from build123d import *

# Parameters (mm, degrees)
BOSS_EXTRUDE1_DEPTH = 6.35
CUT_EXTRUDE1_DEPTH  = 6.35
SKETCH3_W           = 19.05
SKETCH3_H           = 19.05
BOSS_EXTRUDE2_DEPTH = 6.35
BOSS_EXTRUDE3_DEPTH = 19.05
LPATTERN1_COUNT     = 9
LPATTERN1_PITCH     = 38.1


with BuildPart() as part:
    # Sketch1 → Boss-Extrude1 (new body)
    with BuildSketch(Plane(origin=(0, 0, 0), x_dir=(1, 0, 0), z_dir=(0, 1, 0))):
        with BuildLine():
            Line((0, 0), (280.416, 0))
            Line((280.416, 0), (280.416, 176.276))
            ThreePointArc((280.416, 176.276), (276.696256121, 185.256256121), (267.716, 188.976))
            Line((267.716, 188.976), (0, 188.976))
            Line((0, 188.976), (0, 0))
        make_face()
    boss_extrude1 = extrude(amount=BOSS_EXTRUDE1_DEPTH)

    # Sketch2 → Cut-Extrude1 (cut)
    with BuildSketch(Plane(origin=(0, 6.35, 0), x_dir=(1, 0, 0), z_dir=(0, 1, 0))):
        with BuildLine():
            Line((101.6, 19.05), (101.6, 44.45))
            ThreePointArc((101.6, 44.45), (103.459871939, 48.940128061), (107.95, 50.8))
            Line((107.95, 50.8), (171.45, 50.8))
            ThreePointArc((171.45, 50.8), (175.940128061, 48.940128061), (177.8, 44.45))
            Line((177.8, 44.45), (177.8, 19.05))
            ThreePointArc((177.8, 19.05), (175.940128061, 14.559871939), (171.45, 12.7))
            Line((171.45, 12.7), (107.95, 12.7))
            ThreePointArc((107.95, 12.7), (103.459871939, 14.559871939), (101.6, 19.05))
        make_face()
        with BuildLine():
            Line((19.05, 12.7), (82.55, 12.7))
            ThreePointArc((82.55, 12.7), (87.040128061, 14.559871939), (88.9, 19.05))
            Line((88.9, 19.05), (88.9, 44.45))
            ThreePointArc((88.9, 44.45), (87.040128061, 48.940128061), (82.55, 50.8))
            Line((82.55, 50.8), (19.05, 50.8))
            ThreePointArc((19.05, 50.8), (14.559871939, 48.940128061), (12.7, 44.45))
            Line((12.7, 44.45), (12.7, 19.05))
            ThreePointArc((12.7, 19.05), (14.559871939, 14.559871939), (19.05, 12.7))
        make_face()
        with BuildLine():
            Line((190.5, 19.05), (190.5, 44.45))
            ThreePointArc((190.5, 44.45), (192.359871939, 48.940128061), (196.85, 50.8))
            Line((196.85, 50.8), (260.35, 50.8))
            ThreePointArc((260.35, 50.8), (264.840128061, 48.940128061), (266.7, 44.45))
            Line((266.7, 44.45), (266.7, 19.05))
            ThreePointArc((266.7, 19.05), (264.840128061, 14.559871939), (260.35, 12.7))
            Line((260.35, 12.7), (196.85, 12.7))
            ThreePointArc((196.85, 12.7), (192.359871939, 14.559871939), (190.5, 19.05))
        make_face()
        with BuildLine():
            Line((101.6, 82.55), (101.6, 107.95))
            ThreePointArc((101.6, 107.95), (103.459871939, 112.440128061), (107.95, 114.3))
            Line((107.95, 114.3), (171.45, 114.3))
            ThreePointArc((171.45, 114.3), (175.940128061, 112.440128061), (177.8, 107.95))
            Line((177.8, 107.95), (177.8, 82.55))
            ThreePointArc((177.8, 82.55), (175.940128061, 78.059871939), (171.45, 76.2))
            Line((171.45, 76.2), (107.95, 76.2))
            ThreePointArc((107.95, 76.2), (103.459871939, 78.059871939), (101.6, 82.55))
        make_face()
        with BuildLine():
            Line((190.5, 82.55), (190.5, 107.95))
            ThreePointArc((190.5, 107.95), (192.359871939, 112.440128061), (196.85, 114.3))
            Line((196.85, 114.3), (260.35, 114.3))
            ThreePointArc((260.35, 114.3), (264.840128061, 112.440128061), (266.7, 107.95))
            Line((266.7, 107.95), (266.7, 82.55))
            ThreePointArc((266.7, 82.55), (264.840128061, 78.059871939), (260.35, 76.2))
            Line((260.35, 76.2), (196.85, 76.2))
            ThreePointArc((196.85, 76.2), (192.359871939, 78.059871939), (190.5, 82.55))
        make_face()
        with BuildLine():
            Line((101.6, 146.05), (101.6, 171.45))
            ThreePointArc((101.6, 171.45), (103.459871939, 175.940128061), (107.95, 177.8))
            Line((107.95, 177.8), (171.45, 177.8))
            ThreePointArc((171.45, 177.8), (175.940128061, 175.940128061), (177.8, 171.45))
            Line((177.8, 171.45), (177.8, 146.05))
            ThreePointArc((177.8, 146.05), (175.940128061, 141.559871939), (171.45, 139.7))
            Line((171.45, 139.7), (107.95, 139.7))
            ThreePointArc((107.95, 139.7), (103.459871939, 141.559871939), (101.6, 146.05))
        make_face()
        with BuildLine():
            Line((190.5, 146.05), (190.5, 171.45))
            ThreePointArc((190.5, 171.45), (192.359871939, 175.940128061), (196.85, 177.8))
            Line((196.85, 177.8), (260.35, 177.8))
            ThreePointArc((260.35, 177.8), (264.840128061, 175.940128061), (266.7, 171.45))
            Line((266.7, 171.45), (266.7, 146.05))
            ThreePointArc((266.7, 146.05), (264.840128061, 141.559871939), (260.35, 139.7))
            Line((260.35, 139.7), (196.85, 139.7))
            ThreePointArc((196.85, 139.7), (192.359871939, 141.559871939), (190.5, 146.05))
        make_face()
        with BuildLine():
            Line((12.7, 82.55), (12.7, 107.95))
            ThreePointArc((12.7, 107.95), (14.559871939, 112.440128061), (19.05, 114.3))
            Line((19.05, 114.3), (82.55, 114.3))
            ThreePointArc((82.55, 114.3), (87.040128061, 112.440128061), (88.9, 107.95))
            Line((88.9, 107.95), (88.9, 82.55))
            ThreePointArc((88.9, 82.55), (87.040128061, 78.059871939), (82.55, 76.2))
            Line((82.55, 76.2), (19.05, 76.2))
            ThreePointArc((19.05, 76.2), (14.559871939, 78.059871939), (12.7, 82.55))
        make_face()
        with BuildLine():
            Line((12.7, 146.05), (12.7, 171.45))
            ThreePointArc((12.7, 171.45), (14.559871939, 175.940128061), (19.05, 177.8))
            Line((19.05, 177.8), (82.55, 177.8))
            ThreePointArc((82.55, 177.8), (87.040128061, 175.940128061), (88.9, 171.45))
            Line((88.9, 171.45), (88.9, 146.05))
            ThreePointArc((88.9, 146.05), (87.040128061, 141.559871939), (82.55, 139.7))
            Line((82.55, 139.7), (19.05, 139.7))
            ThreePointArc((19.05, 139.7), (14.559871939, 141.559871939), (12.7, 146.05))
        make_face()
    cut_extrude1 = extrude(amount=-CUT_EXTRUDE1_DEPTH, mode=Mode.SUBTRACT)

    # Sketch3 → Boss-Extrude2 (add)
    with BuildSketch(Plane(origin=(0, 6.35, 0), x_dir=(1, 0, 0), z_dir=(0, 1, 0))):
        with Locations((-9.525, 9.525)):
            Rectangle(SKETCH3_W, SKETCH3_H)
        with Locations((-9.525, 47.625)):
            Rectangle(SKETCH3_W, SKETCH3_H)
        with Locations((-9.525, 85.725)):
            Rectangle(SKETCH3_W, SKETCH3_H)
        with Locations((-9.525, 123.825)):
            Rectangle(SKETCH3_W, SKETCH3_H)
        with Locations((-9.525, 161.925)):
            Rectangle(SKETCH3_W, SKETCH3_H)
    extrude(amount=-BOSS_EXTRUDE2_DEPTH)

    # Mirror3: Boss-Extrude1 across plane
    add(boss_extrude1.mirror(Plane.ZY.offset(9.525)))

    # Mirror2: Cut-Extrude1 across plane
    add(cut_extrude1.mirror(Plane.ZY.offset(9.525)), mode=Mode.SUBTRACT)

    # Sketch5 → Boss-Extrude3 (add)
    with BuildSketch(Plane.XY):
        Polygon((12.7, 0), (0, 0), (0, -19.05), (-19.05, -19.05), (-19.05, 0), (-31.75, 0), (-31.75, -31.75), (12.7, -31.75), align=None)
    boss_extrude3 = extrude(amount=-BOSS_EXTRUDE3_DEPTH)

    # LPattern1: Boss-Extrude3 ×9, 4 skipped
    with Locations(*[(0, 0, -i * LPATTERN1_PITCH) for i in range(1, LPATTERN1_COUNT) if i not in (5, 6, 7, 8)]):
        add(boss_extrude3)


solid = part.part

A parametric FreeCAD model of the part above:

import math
import FreeCAD as App
import Part
import Sketcher

V = App.Vector
Q = App.Units.Quantity

doc = App.newDocument("Part")
params = doc.addObject("Spreadsheet::Sheet", "Params")
for row, (alias, value) in enumerate([
    ("sketch1_radius", "0.5 in"),
    ("sketch1_width", "11.04 in"),
    ("sketch1_height", "6.94 in"),
    ("pad1_length", "0.25 in"),
    ("sketch2_height", "1 in"),
    ("sketch2_radius", "0.25 in"),
    ("sketch2_width", "2.5 in"),
    ("pocket1_length", "0.25 in"),
    ("sketch3_width", "0.75 in"),
    ("pad2_length", "0.25 in"),
    ("sketch4_width", "0.5 in"),
    ("sketch4_width2", "0.75 in"),
    ("sketch4_height", "1.25 in"),
    ("pad3_length", "0.75 in"),
    ("linearpattern_pitch", "1.5 in"),
], start=1):
    params.set(f"A{row}", alias)
    params.set(f"B{row}", "=" + value)
    params.setAlias(f"B{row}", alias)

body = doc.addObject("PartDesign::Body", "Body")

sketch1 = body.newObject("Sketcher::SketchObject", "Sketch")
sketch1.AttachmentSupport = (doc.getObject("XZ_Plane"), [""])
sketch1.MapMode = "FlatFace"
sketch1.addGeometry(Part.LineSegment(V(0, 0, 0), V(280, 0, 0)), False)
sketch1.addGeometry(Part.LineSegment(V(280, 0, 0), V(280, -176, 0)), False)
sketch1.addGeometry(Part.ArcOfCircle(Part.Circle(V(268, -176, 0), V(0, 0, 1), 13), math.radians(-90), math.radians(0)), False)
sketch1.addGeometry(Part.LineSegment(V(268, -189, 0), V(0, -189, 0)), False)
sketch1.addGeometry(Part.LineSegment(V(0, -189, 0), V(0, 0, 0)), False)
sketch1.addConstraint(Sketcher.Constraint("Coincident", 0, 2, 1, 1))
sketch1.addConstraint(Sketcher.Constraint("Tangent", 1, 2, 2, 2))
sketch1.addConstraint(Sketcher.Constraint("Tangent", 2, 1, 3, 1))
sketch1.addConstraint(Sketcher.Constraint("Coincident", 3, 2, 4, 1))
sketch1.addConstraint(Sketcher.Constraint("Coincident", 4, 2, 0, 1))
sketch1.addConstraint(Sketcher.Constraint("Horizontal", 0))
sketch1.addConstraint(Sketcher.Constraint("Vertical", 1))
sketch1.addConstraint(Sketcher.Constraint("Horizontal", 3))
sketch1.addConstraint(Sketcher.Constraint("Vertical", 4))
sketch1.addConstraint(Sketcher.Constraint("Coincident", 4, 2, -1, 1))
sketch1.addConstraint(Sketcher.Constraint("Radius", 2, Q("0.5 in")))
sketch1.addConstraint(Sketcher.Constraint("DistanceX", 0, 1, 0, 2, Q("11.04 in")))
sketch1.addConstraint(Sketcher.Constraint("DistanceY", 1, 2, 1, 1, Q("6.94 in")))
sketch1.setExpression("Constraints[10]", "Params.sketch1_radius")
sketch1.setExpression("Constraints[11]", "Params.sketch1_width")
sketch1.setExpression("Constraints[12]", "Params.sketch1_height")
pad1 = body.newObject("PartDesign::Pad", "Pad")
pad1.Profile = sketch1
pad1.setExpression("Length", "Params.pad1_length")
pad1.Reversed = True

sketch2 = body.newObject("Sketcher::SketchObject", "Sketch001")
sketch2.AttachmentSupport = (doc.getObject("XZ_Plane"), [""])
sketch2.MapMode = "FlatFace"
sketch2.AttachmentOffset = App.Placement(V(0, 0, -0.25 * 25.4), App.Rotation())
sketch2.addGeometry(Part.LineSegment(V(102, -44, 0), V(102, -19, 0)), False)
sketch2.addGeometry(Part.ArcOfCircle(Part.Circle(V(108, -19, 0), V(0, 0, 1), 6), math.radians(90), math.radians(180)), False)
sketch2.addGeometry(Part.LineSegment(V(108, -13, 0), V(171, -13, 0)), False)
sketch2.addGeometry(Part.ArcOfCircle(Part.Circle(V(171, -19, 0), V(0, 0, 1), 6), math.radians(0), math.radians(90)), False)
sketch2.addGeometry(Part.LineSegment(V(178, -19, 0), V(178, -44, 0)), False)
sketch2.addGeometry(Part.ArcOfCircle(Part.Circle(V(171, -44, 0), V(0, 0, 1), 6), math.radians(-90), math.radians(0)), False)
sketch2.addGeometry(Part.LineSegment(V(171, -51, 0), V(108, -51, 0)), False)
sketch2.addGeometry(Part.ArcOfCircle(Part.Circle(V(108, -44, 0), V(0, 0, 1), 6), math.radians(180), math.radians(270)), False)
sketch2.addGeometry(Part.LineSegment(V(19, -13, 0), V(83, -13, 0)), False)
sketch2.addGeometry(Part.ArcOfCircle(Part.Circle(V(83, -19, 0), V(0, 0, 1), 6), math.radians(0), math.radians(90)), False)
sketch2.addGeometry(Part.LineSegment(V(89, -19, 0), V(89, -44, 0)), False)
sketch2.addGeometry(Part.ArcOfCircle(Part.Circle(V(83, -44, 0), V(0, 0, 1), 6), math.radians(-90), math.radians(0)), False)
sketch2.addGeometry(Part.LineSegment(V(83, -51, 0), V(19, -51, 0)), False)
sketch2.addGeometry(Part.ArcOfCircle(Part.Circle(V(19, -44, 0), V(0, 0, 1), 6), math.radians(180), math.radians(270)), False)
sketch2.addGeometry(Part.LineSegment(V(13, -44, 0), V(13, -19, 0)), False)
sketch2.addGeometry(Part.ArcOfCircle(Part.Circle(V(19, -19, 0), V(0, 0, 1), 6), math.radians(90), math.radians(180)), False)
sketch2.addGeometry(Part.LineSegment(V(190, -44, 0), V(190, -19, 0)), False)
sketch2.addGeometry(Part.ArcOfCircle(Part.Circle(V(197, -19, 0), V(0, 0, 1), 6), math.radians(90), math.radians(180)), False)
sketch2.addGeometry(Part.LineSegment(V(197, -13, 0), V(260, -13, 0)), False)
sketch2.addGeometry(Part.ArcOfCircle(Part.Circle(V(260, -19, 0), V(0, 0, 1), 6), math.radians(0), math.radians(90)), False)
sketch2.addGeometry(Part.LineSegment(V(267, -19, 0), V(267, -44, 0)), False)
sketch2.addGeometry(Part.ArcOfCircle(Part.Circle(V(260, -44, 0), V(0, 0, 1), 6), math.radians(-90), math.radians(0)), False)
sketch2.addGeometry(Part.LineSegment(V(260, -51, 0), V(197, -51, 0)), False)
sketch2.addGeometry(Part.ArcOfCircle(Part.Circle(V(197, -44, 0), V(0, 0, 1), 6), math.radians(180), math.radians(270)), False)
sketch2.addGeometry(Part.LineSegment(V(102, -108, 0), V(102, -83, 0)), False)
sketch2.addGeometry(Part.ArcOfCircle(Part.Circle(V(108, -83, 0), V(0, 0, 1), 6), math.radians(90), math.radians(180)), False)
sketch2.addGeometry(Part.LineSegment(V(108, -76, 0), V(171, -76, 0)), False)
sketch2.addGeometry(Part.ArcOfCircle(Part.Circle(V(171, -83, 0), V(0, 0, 1), 6), math.radians(0), math.radians(90)), False)
sketch2.addGeometry(Part.LineSegment(V(178, -83, 0), V(178, -108, 0)), False)
sketch2.addGeometry(Part.ArcOfCircle(Part.Circle(V(171, -108, 0), V(0, 0, 1), 6), math.radians(-90), math.radians(0)), False)
sketch2.addGeometry(Part.LineSegment(V(171, -114, 0), V(108, -114, 0)), False)
sketch2.addGeometry(Part.ArcOfCircle(Part.Circle(V(108, -108, 0), V(0, 0, 1), 6), math.radians(180), math.radians(270)), False)
sketch2.addGeometry(Part.LineSegment(V(190, -108, 0), V(190, -83, 0)), False)
sketch2.addGeometry(Part.ArcOfCircle(Part.Circle(V(197, -83, 0), V(0, 0, 1), 6), math.radians(90), math.radians(180)), False)
sketch2.addGeometry(Part.LineSegment(V(197, -76, 0), V(260, -76, 0)), False)
sketch2.addGeometry(Part.ArcOfCircle(Part.Circle(V(260, -83, 0), V(0, 0, 1), 6), math.radians(0), math.radians(90)), False)
sketch2.addGeometry(Part.LineSegment(V(267, -83, 0), V(267, -108, 0)), False)
sketch2.addGeometry(Part.ArcOfCircle(Part.Circle(V(260, -108, 0), V(0, 0, 1), 6), math.radians(-90), math.radians(0)), False)
sketch2.addGeometry(Part.LineSegment(V(260, -114, 0), V(197, -114, 0)), False)
sketch2.addGeometry(Part.ArcOfCircle(Part.Circle(V(197, -108, 0), V(0, 0, 1), 6), math.radians(180), math.radians(270)), False)
sketch2.addGeometry(Part.LineSegment(V(102, -171, 0), V(102, -146, 0)), False)
sketch2.addGeometry(Part.ArcOfCircle(Part.Circle(V(108, -146, 0), V(0, 0, 1), 6), math.radians(90), math.radians(180)), False)
sketch2.addGeometry(Part.LineSegment(V(108, -140, 0), V(171, -140, 0)), False)
sketch2.addGeometry(Part.ArcOfCircle(Part.Circle(V(171, -146, 0), V(0, 0, 1), 6), math.radians(0), math.radians(90)), False)
sketch2.addGeometry(Part.LineSegment(V(178, -146, 0), V(178, -171, 0)), False)
sketch2.addGeometry(Part.ArcOfCircle(Part.Circle(V(171, -171, 0), V(0, 0, 1), 6), math.radians(-90), math.radians(0)), False)
sketch2.addGeometry(Part.LineSegment(V(171, -178, 0), V(108, -178, 0)), False)
sketch2.addGeometry(Part.ArcOfCircle(Part.Circle(V(108, -171, 0), V(0, 0, 1), 6), math.radians(180), math.radians(270)), False)
sketch2.addGeometry(Part.LineSegment(V(190, -171, 0), V(190, -146, 0)), False)
sketch2.addGeometry(Part.ArcOfCircle(Part.Circle(V(197, -146, 0), V(0, 0, 1), 6), math.radians(90), math.radians(180)), False)
sketch2.addGeometry(Part.LineSegment(V(197, -140, 0), V(260, -140, 0)), False)
sketch2.addGeometry(Part.ArcOfCircle(Part.Circle(V(260, -146, 0), V(0, 0, 1), 6), math.radians(0), math.radians(90)), False)
sketch2.addGeometry(Part.LineSegment(V(267, -146, 0), V(267, -171, 0)), False)
sketch2.addGeometry(Part.ArcOfCircle(Part.Circle(V(260, -171, 0), V(0, 0, 1), 6), math.radians(-90), math.radians(0)), False)
sketch2.addGeometry(Part.LineSegment(V(260, -178, 0), V(197, -178, 0)), False)
sketch2.addGeometry(Part.ArcOfCircle(Part.Circle(V(197, -171, 0), V(0, 0, 1), 6), math.radians(180), math.radians(270)), False)
sketch2.addGeometry(Part.LineSegment(V(13, -108, 0), V(13, -83, 0)), False)
sketch2.addGeometry(Part.ArcOfCircle(Part.Circle(V(19, -83, 0), V(0, 0, 1), 6), math.radians(90), math.radians(180)), False)
sketch2.addGeometry(Part.LineSegment(V(19, -76, 0), V(83, -76, 0)), False)
sketch2.addGeometry(Part.ArcOfCircle(Part.Circle(V(83, -83, 0), V(0, 0, 1), 6), math.radians(0), math.radians(90)), False)
sketch2.addGeometry(Part.LineSegment(V(89, -83, 0), V(89, -108, 0)), False)
sketch2.addGeometry(Part.ArcOfCircle(Part.Circle(V(83, -108, 0), V(0, 0, 1), 6), math.radians(-90), math.radians(0)), False)
sketch2.addGeometry(Part.LineSegment(V(83, -114, 0), V(19, -114, 0)), False)
sketch2.addGeometry(Part.ArcOfCircle(Part.Circle(V(19, -108, 0), V(0, 0, 1), 6), math.radians(180), math.radians(270)), False)
sketch2.addGeometry(Part.LineSegment(V(13, -171, 0), V(13, -146, 0)), False)
sketch2.addGeometry(Part.ArcOfCircle(Part.Circle(V(19, -146, 0), V(0, 0, 1), 6), math.radians(90), math.radians(180)), False)
sketch2.addGeometry(Part.LineSegment(V(19, -140, 0), V(83, -140, 0)), False)
sketch2.addGeometry(Part.ArcOfCircle(Part.Circle(V(83, -146, 0), V(0, 0, 1), 6), math.radians(0), math.radians(90)), False)
sketch2.addGeometry(Part.LineSegment(V(89, -146, 0), V(89, -171, 0)), False)
sketch2.addGeometry(Part.ArcOfCircle(Part.Circle(V(83, -171, 0), V(0, 0, 1), 6), math.radians(-90), math.radians(0)), False)
sketch2.addGeometry(Part.LineSegment(V(83, -178, 0), V(19, -178, 0)), False)
sketch2.addGeometry(Part.ArcOfCircle(Part.Circle(V(19, -171, 0), V(0, 0, 1), 6), math.radians(180), math.radians(270)), False)
sketch2.addConstraint(Sketcher.Constraint("Tangent", 0, 2, 1, 2))
sketch2.addConstraint(Sketcher.Constraint("Tangent", 1, 1, 2, 1))
sketch2.addConstraint(Sketcher.Constraint("Tangent", 2, 2, 3, 2))
sketch2.addConstraint(Sketcher.Constraint("Tangent", 3, 1, 4, 1))
sketch2.addConstraint(Sketcher.Constraint("Tangent", 4, 2, 5, 2))
sketch2.addConstraint(Sketcher.Constraint("Tangent", 5, 1, 6, 1))
sketch2.addConstraint(Sketcher.Constraint("Tangent", 6, 2, 7, 2))
sketch2.addConstraint(Sketcher.Constraint("Tangent", 7, 1, 0, 1))
sketch2.addConstraint(Sketcher.Constraint("Tangent", 8, 2, 9, 2))
sketch2.addConstraint(Sketcher.Constraint("Tangent", 9, 1, 10, 1))
sketch2.addConstraint(Sketcher.Constraint("Tangent", 10, 2, 11, 2))
sketch2.addConstraint(Sketcher.Constraint("Tangent", 11, 1, 12, 1))
sketch2.addConstraint(Sketcher.Constraint("Tangent", 12, 2, 13, 2))
sketch2.addConstraint(Sketcher.Constraint("Tangent", 13, 1, 14, 1))
sketch2.addConstraint(Sketcher.Constraint("Tangent", 14, 2, 15, 2))
sketch2.addConstraint(Sketcher.Constraint("Tangent", 15, 1, 8, 1))
sketch2.addConstraint(Sketcher.Constraint("Tangent", 16, 2, 17, 2))
sketch2.addConstraint(Sketcher.Constraint("Tangent", 17, 1, 18, 1))
sketch2.addConstraint(Sketcher.Constraint("Tangent", 18, 2, 19, 2))
sketch2.addConstraint(Sketcher.Constraint("Tangent", 19, 1, 20, 1))
sketch2.addConstraint(Sketcher.Constraint("Tangent", 20, 2, 21, 2))
sketch2.addConstraint(Sketcher.Constraint("Tangent", 21, 1, 22, 1))
sketch2.addConstraint(Sketcher.Constraint("Tangent", 22, 2, 23, 2))
sketch2.addConstraint(Sketcher.Constraint("Tangent", 23, 1, 16, 1))
sketch2.addConstraint(Sketcher.Constraint("Tangent", 24, 2, 25, 2))
sketch2.addConstraint(Sketcher.Constraint("Tangent", 25, 1, 26, 1))
sketch2.addConstraint(Sketcher.Constraint("Tangent", 26, 2, 27, 2))
sketch2.addConstraint(Sketcher.Constraint("Tangent", 27, 1, 28, 1))
sketch2.addConstraint(Sketcher.Constraint("Tangent", 28, 2, 29, 2))
sketch2.addConstraint(Sketcher.Constraint("Tangent", 29, 1, 30, 1))
sketch2.addConstraint(Sketcher.Constraint("Tangent", 30, 2, 31, 2))
sketch2.addConstraint(Sketcher.Constraint("Tangent", 31, 1, 24, 1))
sketch2.addConstraint(Sketcher.Constraint("Tangent", 32, 2, 33, 2))
sketch2.addConstraint(Sketcher.Constraint("Tangent", 33, 1, 34, 1))
sketch2.addConstraint(Sketcher.Constraint("Tangent", 34, 2, 35, 2))
sketch2.addConstraint(Sketcher.Constraint("Tangent", 35, 1, 36, 1))
sketch2.addConstraint(Sketcher.Constraint("Tangent", 36, 2, 37, 2))
sketch2.addConstraint(Sketcher.Constraint("Tangent", 37, 1, 38, 1))
sketch2.addConstraint(Sketcher.Constraint("Tangent", 38, 2, 39, 2))
sketch2.addConstraint(Sketcher.Constraint("Tangent", 39, 1, 32, 1))
sketch2.addConstraint(Sketcher.Constraint("Tangent", 40, 2, 41, 2))
sketch2.addConstraint(Sketcher.Constraint("Tangent", 41, 1, 42, 1))
sketch2.addConstraint(Sketcher.Constraint("Tangent", 42, 2, 43, 2))
sketch2.addConstraint(Sketcher.Constraint("Tangent", 43, 1, 44, 1))
sketch2.addConstraint(Sketcher.Constraint("Tangent", 44, 2, 45, 2))
sketch2.addConstraint(Sketcher.Constraint("Tangent", 45, 1, 46, 1))
sketch2.addConstraint(Sketcher.Constraint("Tangent", 46, 2, 47, 2))
sketch2.addConstraint(Sketcher.Constraint("Tangent", 47, 1, 40, 1))
sketch2.addConstraint(Sketcher.Constraint("Tangent", 48, 2, 49, 2))
sketch2.addConstraint(Sketcher.Constraint("Tangent", 49, 1, 50, 1))
sketch2.addConstraint(Sketcher.Constraint("Tangent", 50, 2, 51, 2))
sketch2.addConstraint(Sketcher.Constraint("Tangent", 51, 1, 52, 1))
sketch2.addConstraint(Sketcher.Constraint("Tangent", 52, 2, 53, 2))
sketch2.addConstraint(Sketcher.Constraint("Tangent", 53, 1, 54, 1))
sketch2.addConstraint(Sketcher.Constraint("Tangent", 54, 2, 55, 2))
sketch2.addConstraint(Sketcher.Constraint("Tangent", 55, 1, 48, 1))
sketch2.addConstraint(Sketcher.Constraint("Tangent", 56, 2, 57, 2))
sketch2.addConstraint(Sketcher.Constraint("Tangent", 57, 1, 58, 1))
sketch2.addConstraint(Sketcher.Constraint("Tangent", 58, 2, 59, 2))
sketch2.addConstraint(Sketcher.Constraint("Tangent", 59, 1, 60, 1))
sketch2.addConstraint(Sketcher.Constraint("Tangent", 60, 2, 61, 2))
sketch2.addConstraint(Sketcher.Constraint("Tangent", 61, 1, 62, 1))
sketch2.addConstraint(Sketcher.Constraint("Tangent", 62, 2, 63, 2))
sketch2.addConstraint(Sketcher.Constraint("Tangent", 63, 1, 56, 1))
sketch2.addConstraint(Sketcher.Constraint("Tangent", 64, 2, 65, 2))
sketch2.addConstraint(Sketcher.Constraint("Tangent", 65, 1, 66, 1))
sketch2.addConstraint(Sketcher.Constraint("Tangent", 66, 2, 67, 2))
sketch2.addConstraint(Sketcher.Constraint("Tangent", 67, 1, 68, 1))
sketch2.addConstraint(Sketcher.Constraint("Tangent", 68, 2, 69, 2))
sketch2.addConstraint(Sketcher.Constraint("Tangent", 69, 1, 70, 1))
sketch2.addConstraint(Sketcher.Constraint("Tangent", 70, 2, 71, 2))
sketch2.addConstraint(Sketcher.Constraint("Tangent", 71, 1, 64, 1))
sketch2.addConstraint(Sketcher.Constraint("Vertical", 0))
sketch2.addConstraint(Sketcher.Constraint("Horizontal", 2))
sketch2.addConstraint(Sketcher.Constraint("Vertical", 4))
sketch2.addConstraint(Sketcher.Constraint("Horizontal", 6))
sketch2.addConstraint(Sketcher.Constraint("Horizontal", 8))
sketch2.addConstraint(Sketcher.Constraint("Vertical", 10))
sketch2.addConstraint(Sketcher.Constraint("Horizontal", 12))
sketch2.addConstraint(Sketcher.Constraint("Vertical", 14))
sketch2.addConstraint(Sketcher.Constraint("Vertical", 16))
sketch2.addConstraint(Sketcher.Constraint("Horizontal", 18))
sketch2.addConstraint(Sketcher.Constraint("Vertical", 20))
sketch2.addConstraint(Sketcher.Constraint("Horizontal", 22))
sketch2.addConstraint(Sketcher.Constraint("Vertical", 24))
sketch2.addConstraint(Sketcher.Constraint("Horizontal", 26))
sketch2.addConstraint(Sketcher.Constraint("Vertical", 28))
sketch2.addConstraint(Sketcher.Constraint("Horizontal", 30))
sketch2.addConstraint(Sketcher.Constraint("Vertical", 32))
sketch2.addConstraint(Sketcher.Constraint("Horizontal", 34))
sketch2.addConstraint(Sketcher.Constraint("Vertical", 36))
sketch2.addConstraint(Sketcher.Constraint("Horizontal", 38))
sketch2.addConstraint(Sketcher.Constraint("Vertical", 40))
sketch2.addConstraint(Sketcher.Constraint("Horizontal", 42))
sketch2.addConstraint(Sketcher.Constraint("Vertical", 44))
sketch2.addConstraint(Sketcher.Constraint("Horizontal", 46))
sketch2.addConstraint(Sketcher.Constraint("Vertical", 48))
sketch2.addConstraint(Sketcher.Constraint("Horizontal", 50))
sketch2.addConstraint(Sketcher.Constraint("Vertical", 52))
sketch2.addConstraint(Sketcher.Constraint("Horizontal", 54))
sketch2.addConstraint(Sketcher.Constraint("Vertical", 56))
sketch2.addConstraint(Sketcher.Constraint("Horizontal", 58))
sketch2.addConstraint(Sketcher.Constraint("Vertical", 60))
sketch2.addConstraint(Sketcher.Constraint("Horizontal", 62))
sketch2.addConstraint(Sketcher.Constraint("Vertical", 64))
sketch2.addConstraint(Sketcher.Constraint("Horizontal", 66))
sketch2.addConstraint(Sketcher.Constraint("Vertical", 68))
sketch2.addConstraint(Sketcher.Constraint("Horizontal", 70))
sketch2.addConstraint(Sketcher.Constraint("Equal", 1, 3))
sketch2.addConstraint(Sketcher.Constraint("Equal", 3, 5))
sketch2.addConstraint(Sketcher.Constraint("Equal", 5, 7))
sketch2.addConstraint(Sketcher.Constraint("Equal", 7, 9))
sketch2.addConstraint(Sketcher.Constraint("Equal", 9, 11))
sketch2.addConstraint(Sketcher.Constraint("Equal", 11, 13))
sketch2.addConstraint(Sketcher.Constraint("Equal", 13, 15))
sketch2.addConstraint(Sketcher.Constraint("Equal", 15, 17))
sketch2.addConstraint(Sketcher.Constraint("Equal", 17, 19))
sketch2.addConstraint(Sketcher.Constraint("Equal", 19, 21))
sketch2.addConstraint(Sketcher.Constraint("Equal", 21, 23))
sketch2.addConstraint(Sketcher.Constraint("Equal", 23, 25))
sketch2.addConstraint(Sketcher.Constraint("Equal", 25, 27))
sketch2.addConstraint(Sketcher.Constraint("Equal", 27, 29))
sketch2.addConstraint(Sketcher.Constraint("Equal", 29, 31))
sketch2.addConstraint(Sketcher.Constraint("Equal", 31, 33))
sketch2.addConstraint(Sketcher.Constraint("Equal", 33, 35))
sketch2.addConstraint(Sketcher.Constraint("Equal", 35, 37))
sketch2.addConstraint(Sketcher.Constraint("Equal", 37, 39))
sketch2.addConstraint(Sketcher.Constraint("Equal", 39, 41))
sketch2.addConstraint(Sketcher.Constraint("Equal", 41, 43))
sketch2.addConstraint(Sketcher.Constraint("Equal", 43, 45))
sketch2.addConstraint(Sketcher.Constraint("Equal", 45, 47))
sketch2.addConstraint(Sketcher.Constraint("Equal", 47, 49))
sketch2.addConstraint(Sketcher.Constraint("Equal", 49, 51))
sketch2.addConstraint(Sketcher.Constraint("Equal", 51, 53))
sketch2.addConstraint(Sketcher.Constraint("Equal", 53, 55))
sketch2.addConstraint(Sketcher.Constraint("Equal", 55, 57))
sketch2.addConstraint(Sketcher.Constraint("Equal", 57, 59))
sketch2.addConstraint(Sketcher.Constraint("Equal", 59, 61))
sketch2.addConstraint(Sketcher.Constraint("Equal", 61, 63))
sketch2.addConstraint(Sketcher.Constraint("Equal", 63, 65))
sketch2.addConstraint(Sketcher.Constraint("Equal", 65, 67))
sketch2.addConstraint(Sketcher.Constraint("Equal", 67, 69))
sketch2.addConstraint(Sketcher.Constraint("Equal", 69, 71))
sketch2.addConstraint(Sketcher.Constraint("Horizontal", 3, 3, 9, 3))
sketch2.addConstraint(Sketcher.Constraint("Horizontal", 7, 3, 11, 3))
sketch2.addConstraint(Sketcher.Constraint("Horizontal", 15, 3, 17, 3))
sketch2.addConstraint(Sketcher.Constraint("Horizontal", 13, 3, 21, 3))
sketch2.addConstraint(Sketcher.Constraint("Horizontal", 27, 3, 33, 3))
sketch2.addConstraint(Sketcher.Constraint("Horizontal", 31, 3, 37, 3))
sketch2.addConstraint(Sketcher.Constraint("Horizontal", 43, 3, 49, 3))
sketch2.addConstraint(Sketcher.Constraint("Horizontal", 47, 3, 53, 3))
sketch2.addConstraint(Sketcher.Constraint("Horizontal", 35, 3, 57, 3))
sketch2.addConstraint(Sketcher.Constraint("Horizontal", 39, 3, 61, 3))
sketch2.addConstraint(Sketcher.Constraint("Horizontal", 51, 3, 65, 3))
sketch2.addConstraint(Sketcher.Constraint("Horizontal", 55, 3, 69, 3))
sketch2.addConstraint(Sketcher.Constraint("Vertical", 7, 3, 25, 3))
sketch2.addConstraint(Sketcher.Constraint("Vertical", 5, 3, 27, 3))
sketch2.addConstraint(Sketcher.Constraint("Vertical", 23, 3, 33, 3))
sketch2.addConstraint(Sketcher.Constraint("Vertical", 21, 3, 35, 3))
sketch2.addConstraint(Sketcher.Constraint("Vertical", 31, 3, 41, 3))
sketch2.addConstraint(Sketcher.Constraint("Vertical", 29, 3, 43, 3))
sketch2.addConstraint(Sketcher.Constraint("Vertical", 39, 3, 49, 3))
sketch2.addConstraint(Sketcher.Constraint("Vertical", 37, 3, 51, 3))
sketch2.addConstraint(Sketcher.Constraint("Vertical", 15, 3, 57, 3))
sketch2.addConstraint(Sketcher.Constraint("Vertical", 11, 3, 59, 3))
sketch2.addConstraint(Sketcher.Constraint("Vertical", 63, 3, 65, 3))
sketch2.addConstraint(Sketcher.Constraint("Vertical", 61, 3, 67, 3))
sketch2.addConstraint(Sketcher.Constraint("Equal", 6, 8))
sketch2.addConstraint(Sketcher.Constraint("Equal", 12, 18))
sketch2.addConstraint(Sketcher.Constraint("Equal", 20, 24))
sketch2.addConstraint(Sketcher.Constraint("Equal", 36, 40))
sketch2.addConstraint(Sketcher.Constraint("DistanceY", 0, 1, 0, 2, Q("1 in")))
sketch2.addConstraint(Sketcher.Constraint("Radius", 1, Q("0.25 in")))
sketch2.addConstraint(Sketcher.Constraint("DistanceX", 2, 1, 2, 2, Q("2.5 in")))
sketch2.addConstraint(Sketcher.Constraint("DistanceX", -1, 1, 0, 2, Q("4 in")))
sketch2.addConstraint(Sketcher.Constraint("DistanceY", 5, 1, -1, 1, Q("2 in")))
sketch2.addConstraint(Sketcher.Constraint("DistanceY", 25, 1, -1, 1, Q("3 in")))
sketch2.addConstraint(Sketcher.Constraint("DistanceY", 45, 1, -1, 1, Q("7 in")))
sketch2.addConstraint(Sketcher.Constraint("DistanceX", -1, 1, 9, 1, Q("3.5 in")))
sketch2.addConstraint(Sketcher.Constraint("DistanceX", -1, 1, 16, 2, Q("7.5 in")))
sketch2.setExpression("Constraints[171]", "Params.sketch2_height")
sketch2.setExpression("Constraints[172]", "Params.sketch2_radius")
sketch2.setExpression("Constraints[173]", "Params.sketch2_width")
pocket1 = body.newObject("PartDesign::Pocket", "Pocket")
pocket1.Profile = sketch2
pocket1.setExpression("Length", "Params.pocket1_length")
pocket1.Reversed = True

sketch3 = body.newObject("Sketcher::SketchObject", "Sketch002")
sketch3.AttachmentSupport = (doc.getObject("XZ_Plane"), [""])
sketch3.MapMode = "FlatFace"
sketch3.AttachmentOffset = App.Placement(V(0, 0, -0.25 * 25.4), App.Rotation())
sketch3.addGeometry(Part.LineSegment(V(-19, -19, 0), V(-19, 0, 0)), False)
sketch3.addGeometry(Part.LineSegment(V(-19, 0, 0), V(0, 0, 0)), False)
sketch3.addGeometry(Part.LineSegment(V(0, 0, 0), V(0, -19, 0)), False)
sketch3.addGeometry(Part.LineSegment(V(0, -19, 0), V(-19, -19, 0)), False)
sketch3.addGeometry(Part.LineSegment(V(-19, -57, 0), V(-19, -38, 0)), False)
sketch3.addGeometry(Part.LineSegment(V(-19, -38, 0), V(0, -38, 0)), False)
sketch3.addGeometry(Part.LineSegment(V(0, -38, 0), V(0, -57, 0)), False)
sketch3.addGeometry(Part.LineSegment(V(0, -57, 0), V(-19, -57, 0)), False)
sketch3.addGeometry(Part.LineSegment(V(-19, -95, 0), V(-19, -76, 0)), False)
sketch3.addGeometry(Part.LineSegment(V(-19, -76, 0), V(0, -76, 0)), False)
sketch3.addGeometry(Part.LineSegment(V(0, -76, 0), V(0, -95, 0)), False)
sketch3.addGeometry(Part.LineSegment(V(0, -95, 0), V(-19, -95, 0)), False)
sketch3.addGeometry(Part.LineSegment(V(-19, -133, 0), V(-19, -114, 0)), False)
sketch3.addGeometry(Part.LineSegment(V(-19, -114, 0), V(0, -114, 0)), False)
sketch3.addGeometry(Part.LineSegment(V(0, -114, 0), V(0, -133, 0)), False)
sketch3.addGeometry(Part.LineSegment(V(0, -133, 0), V(-19, -133, 0)), False)
sketch3.addGeometry(Part.LineSegment(V(-19, -171, 0), V(-19, -152, 0)), False)
sketch3.addGeometry(Part.LineSegment(V(-19, -152, 0), V(0, -152, 0)), False)
sketch3.addGeometry(Part.LineSegment(V(0, -152, 0), V(0, -171, 0)), False)
sketch3.addGeometry(Part.LineSegment(V(0, -171, 0), V(-19, -171, 0)), False)
sketch3.addConstraint(Sketcher.Constraint("Coincident", 0, 2, 1, 1))
sketch3.addConstraint(Sketcher.Constraint("Coincident", 1, 2, 2, 1))
sketch3.addConstraint(Sketcher.Constraint("Coincident", 2, 2, 3, 1))
sketch3.addConstraint(Sketcher.Constraint("Coincident", 3, 2, 0, 1))
sketch3.addConstraint(Sketcher.Constraint("Coincident", 4, 2, 5, 1))
sketch3.addConstraint(Sketcher.Constraint("Coincident", 5, 2, 6, 1))
sketch3.addConstraint(Sketcher.Constraint("Coincident", 6, 2, 7, 1))
sketch3.addConstraint(Sketcher.Constraint("Coincident", 7, 2, 4, 1))
sketch3.addConstraint(Sketcher.Constraint("Coincident", 8, 2, 9, 1))
sketch3.addConstraint(Sketcher.Constraint("Coincident", 9, 2, 10, 1))
sketch3.addConstraint(Sketcher.Constraint("Coincident", 10, 2, 11, 1))
sketch3.addConstraint(Sketcher.Constraint("Coincident", 11, 2, 8, 1))
sketch3.addConstraint(Sketcher.Constraint("Coincident", 12, 2, 13, 1))
sketch3.addConstraint(Sketcher.Constraint("Coincident", 13, 2, 14, 1))
sketch3.addConstraint(Sketcher.Constraint("Coincident", 14, 2, 15, 1))
sketch3.addConstraint(Sketcher.Constraint("Coincident", 15, 2, 12, 1))
sketch3.addConstraint(Sketcher.Constraint("Coincident", 16, 2, 17, 1))
sketch3.addConstraint(Sketcher.Constraint("Coincident", 17, 2, 18, 1))
sketch3.addConstraint(Sketcher.Constraint("Coincident", 18, 2, 19, 1))
sketch3.addConstraint(Sketcher.Constraint("Coincident", 19, 2, 16, 1))
sketch3.addConstraint(Sketcher.Constraint("Vertical", 0))
sketch3.addConstraint(Sketcher.Constraint("Horizontal", 1))
sketch3.addConstraint(Sketcher.Constraint("Vertical", 2))
sketch3.addConstraint(Sketcher.Constraint("Horizontal", 3))
sketch3.addConstraint(Sketcher.Constraint("Vertical", 4))
sketch3.addConstraint(Sketcher.Constraint("Horizontal", 5))
sketch3.addConstraint(Sketcher.Constraint("Vertical", 6))
sketch3.addConstraint(Sketcher.Constraint("Horizontal", 7))
sketch3.addConstraint(Sketcher.Constraint("Vertical", 8))
sketch3.addConstraint(Sketcher.Constraint("Horizontal", 9))
sketch3.addConstraint(Sketcher.Constraint("Vertical", 10))
sketch3.addConstraint(Sketcher.Constraint("Horizontal", 11))
sketch3.addConstraint(Sketcher.Constraint("Vertical", 12))
sketch3.addConstraint(Sketcher.Constraint("Horizontal", 13))
sketch3.addConstraint(Sketcher.Constraint("Vertical", 14))
sketch3.addConstraint(Sketcher.Constraint("Horizontal", 15))
sketch3.addConstraint(Sketcher.Constraint("Vertical", 16))
sketch3.addConstraint(Sketcher.Constraint("Horizontal", 17))
sketch3.addConstraint(Sketcher.Constraint("Vertical", 18))
sketch3.addConstraint(Sketcher.Constraint("Horizontal", 19))
sketch3.addConstraint(Sketcher.Constraint("Coincident", 1, 2, -1, 1))
sketch3.addConstraint(Sketcher.Constraint("PointOnObject", 5, 2, -2))
sketch3.addConstraint(Sketcher.Constraint("PointOnObject", 9, 2, -2))
sketch3.addConstraint(Sketcher.Constraint("PointOnObject", 13, 2, -2))
sketch3.addConstraint(Sketcher.Constraint("PointOnObject", 17, 2, -2))
sketch3.addConstraint(Sketcher.Constraint("Vertical", 3, 2, 4, 2))
sketch3.addConstraint(Sketcher.Constraint("Vertical", 7, 2, 8, 2))
sketch3.addConstraint(Sketcher.Constraint("Vertical", 11, 2, 12, 2))
sketch3.addConstraint(Sketcher.Constraint("Vertical", 15, 2, 16, 2))
sketch3.addConstraint(Sketcher.Constraint("Equal", 19, 0))
sketch3.addConstraint(Sketcher.Constraint("Equal", 2, 4))
sketch3.addConstraint(Sketcher.Constraint("Equal", 6, 8))
sketch3.addConstraint(Sketcher.Constraint("Equal", 10, 12))
sketch3.addConstraint(Sketcher.Constraint("Equal", 14, 16))
sketch3.addConstraint(Sketcher.Constraint("DistanceY", 8, 2, -1, 1, Q("3 in")))
sketch3.addConstraint(Sketcher.Constraint("DistanceY", 16, 2, -1, 1, Q("6 in")))
sketch3.addConstraint(Sketcher.Constraint("DistanceX", 1, 1, 1, 2, Q("0.75 in")))
sketch3.addConstraint(Sketcher.Constraint("DistanceY", 4, 2, -1, 1, Q("1.5 in")))
sketch3.addConstraint(Sketcher.Constraint("DistanceY", 12, 2, -1, 1, Q("4.5 in")))
sketch3.setExpression("Constraints[56]", "Params.sketch3_width")
pad2 = body.newObject("PartDesign::Pad", "Pad001")
pad2.Profile = sketch3
pad2.setExpression("Length", "Params.pad2_length")
doc.recompute()

datumplane = body.newObject("PartDesign::Plane", "DatumPlane")
datumplane.AttachmentSupport = (doc.getObject("YZ_Plane"), [""])
datumplane.MapMode = "FlatFace"
datumplane.AttachmentOffset = App.Placement(V(0, 0, -0.375 * 25.4), App.Rotation())
mirrored = body.newObject("PartDesign::Mirrored", "Mirrored")
mirrored.Originals = [pad1]
mirrored.MirrorPlane = (datumplane, [""])
body.Tip = mirrored
doc.recompute()

datumplane2 = body.newObject("PartDesign::Plane", "DatumPlane001")
datumplane2.AttachmentSupport = (doc.getObject("YZ_Plane"), [""])
datumplane2.MapMode = "FlatFace"
datumplane2.AttachmentOffset = App.Placement(V(0, 0, -0.375 * 25.4), App.Rotation())
mirrored2 = body.newObject("PartDesign::Mirrored", "Mirrored001")
mirrored2.Originals = [pocket1]
mirrored2.MirrorPlane = (datumplane2, [""])
body.Tip = mirrored2

sketch4 = body.newObject("Sketcher::SketchObject", "Sketch003")
sketch4.AttachmentSupport = (doc.getObject("XY_Plane"), [""])
sketch4.MapMode = "FlatFace"
sketch4.addGeometry(Part.LineSegment(V(13, 0, 0), V(0, 0, 0)), False)
sketch4.addGeometry(Part.LineSegment(V(0, 0, 0), V(0, -19, 0)), False)
sketch4.addGeometry(Part.LineSegment(V(0, -19, 0), V(-19, -19, 0)), False)
sketch4.addGeometry(Part.LineSegment(V(-19, -19, 0), V(-19, 0, 0)), False)
sketch4.addGeometry(Part.LineSegment(V(-19, 0, 0), V(-32, 0, 0)), False)
sketch4.addGeometry(Part.LineSegment(V(-32, 0, 0), V(-32, -32, 0)), False)
sketch4.addGeometry(Part.LineSegment(V(-32, -32, 0), V(13, -32, 0)), False)
sketch4.addGeometry(Part.LineSegment(V(13, -32, 0), V(13, 0, 0)), False)
sketch4.addConstraint(Sketcher.Constraint("Coincident", 0, 2, 1, 1))
sketch4.addConstraint(Sketcher.Constraint("Coincident", 1, 2, 2, 1))
sketch4.addConstraint(Sketcher.Constraint("Coincident", 2, 2, 3, 1))
sketch4.addConstraint(Sketcher.Constraint("Coincident", 3, 2, 4, 1))
sketch4.addConstraint(Sketcher.Constraint("Coincident", 4, 2, 5, 1))
sketch4.addConstraint(Sketcher.Constraint("Coincident", 5, 2, 6, 1))
sketch4.addConstraint(Sketcher.Constraint("Coincident", 6, 2, 7, 1))
sketch4.addConstraint(Sketcher.Constraint("Coincident", 7, 2, 0, 1))
sketch4.addConstraint(Sketcher.Constraint("Horizontal", 0))
sketch4.addConstraint(Sketcher.Constraint("Vertical", 1))
sketch4.addConstraint(Sketcher.Constraint("Horizontal", 2))
sketch4.addConstraint(Sketcher.Constraint("Vertical", 3))
sketch4.addConstraint(Sketcher.Constraint("Horizontal", 4))
sketch4.addConstraint(Sketcher.Constraint("Vertical", 5))
sketch4.addConstraint(Sketcher.Constraint("Horizontal", 6))
sketch4.addConstraint(Sketcher.Constraint("Vertical", 7))
sketch4.addConstraint(Sketcher.Constraint("Coincident", 0, 2, -1, 1))
sketch4.addConstraint(Sketcher.Constraint("PointOnObject", 3, 2, -1))
sketch4.addConstraint(Sketcher.Constraint("Equal", 0, 4))
sketch4.addConstraint(Sketcher.Constraint("Equal", 2, 1))
sketch4.addConstraint(Sketcher.Constraint("DistanceX", 0, 2, 0, 1, Q("0.5 in")))
sketch4.addConstraint(Sketcher.Constraint("DistanceX", 2, 2, 2, 1, Q("0.75 in")))
sketch4.addConstraint(Sketcher.Constraint("DistanceY", 5, 2, 5, 1, Q("1.25 in")))
sketch4.setExpression("Constraints[20]", "Params.sketch4_width")
sketch4.setExpression("Constraints[21]", "Params.sketch4_width2")
sketch4.setExpression("Constraints[22]", "Params.sketch4_height")
pad3 = body.newObject("PartDesign::Pad", "Pad002")
pad3.Profile = sketch4
pad3.setExpression("Length", "Params.pad3_length")
pad3.Reversed = True
doc.recompute()

linearpattern = body.newObject("PartDesign::LinearPattern", "LinearPattern")
linearpattern.Originals = [pad3]
linearpattern.Direction = (doc.getObject("Z_Axis"), [""])
linearpattern.Mode = "offset"
linearpattern.setExpression("Offset", "Params.linearpattern_pitch")
linearpattern.Occurrences = 5
linearpattern.Reversed = True
body.Tip = linearpattern

doc.recompute()
